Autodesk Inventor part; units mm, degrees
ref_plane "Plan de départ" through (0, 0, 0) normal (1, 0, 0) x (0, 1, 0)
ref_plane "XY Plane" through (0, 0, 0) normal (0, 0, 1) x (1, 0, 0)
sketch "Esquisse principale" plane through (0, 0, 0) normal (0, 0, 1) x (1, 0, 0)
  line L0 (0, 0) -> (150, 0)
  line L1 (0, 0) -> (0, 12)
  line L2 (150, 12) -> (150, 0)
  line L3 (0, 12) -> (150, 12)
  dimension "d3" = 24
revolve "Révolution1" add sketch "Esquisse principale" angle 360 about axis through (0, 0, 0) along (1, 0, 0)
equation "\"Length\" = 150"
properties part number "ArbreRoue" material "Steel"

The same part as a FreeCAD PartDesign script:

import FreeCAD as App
import Part
import Sketcher
from FreeCAD import Vector
Q = App.Units.Quantity

doc = App.newDocument("Part")
params = doc.addObject("Spreadsheet::Sheet", "Params")
for row, (alias, value) in enumerate([
    ("sketch1_width", "150 mm"),
    ("sketch1_height", "12 mm"),
    ("revolution_angle", "360 deg"),
], start=1):
    params.set(f"A{row}", alias)
    params.set(f"B{row}", "=" + value)
    params.setAlias(f"B{row}", alias)

body = doc.addObject("PartDesign::Body", "Body")

sketch1 = body.newObject("Sketcher::SketchObject", "Sketch")
sketch1.AttachmentSupport = (doc.getObject("XY_Plane"), [""])
sketch1.MapMode = "FlatFace"
sketch1.addGeometry(Part.LineSegment(Vector(0, 12, 0), Vector(0, 0, 0)), False)
sketch1.addGeometry(Part.LineSegment(Vector(0, 0, 0), Vector(150, 0, 0)), False)
sketch1.addGeometry(Part.LineSegment(Vector(150, 0, 0), Vector(150, 12, 0)), False)
sketch1.addGeometry(Part.LineSegment(Vector(150, 12, 0), Vector(0, 12, 0)), False)
sketch1.addConstraint(Sketcher.Constraint("Coincident", 0, 2, 1, 1))
sketch1.addConstraint(Sketcher.Constraint("Coincident", 1, 2, 2, 1))
sketch1.addConstraint(Sketcher.Constraint("Coincident", 2, 2, 3, 1))
sketch1.addConstraint(Sketcher.Constraint("Coincident", 3, 2, 0, 1))
sketch1.addConstraint(Sketcher.Constraint("Vertical", 0))
sketch1.addConstraint(Sketcher.Constraint("Horizontal", 1))
sketch1.addConstraint(Sketcher.Constraint("Vertical", 2))
sketch1.addConstraint(Sketcher.Constraint("Horizontal", 3))
sketch1.addConstraint(Sketcher.Constraint("Coincident", 0, 2, -1, 1))
sketch1.addConstraint(Sketcher.Constraint("DistanceX", 1, 1, 1, 2, Q("150 mm")))
sketch1.addConstraint(Sketcher.Constraint("DistanceY", 0, 2, 0, 1, Q("12 mm")))
sketch1.setExpression("Constraints[9]", "Params.sketch1_width")
sketch1.setExpression("Constraints[10]", "Params.sketch1_height")
revolution = body.newObject("PartDesign::Revolution", "Revolution")
revolution.Profile = sketch1
revolution.ReferenceAxis = (sketch1, ["H_Axis"])
revolution.setExpression("Angle", "Params.revolution_angle")

doc.recompute()
